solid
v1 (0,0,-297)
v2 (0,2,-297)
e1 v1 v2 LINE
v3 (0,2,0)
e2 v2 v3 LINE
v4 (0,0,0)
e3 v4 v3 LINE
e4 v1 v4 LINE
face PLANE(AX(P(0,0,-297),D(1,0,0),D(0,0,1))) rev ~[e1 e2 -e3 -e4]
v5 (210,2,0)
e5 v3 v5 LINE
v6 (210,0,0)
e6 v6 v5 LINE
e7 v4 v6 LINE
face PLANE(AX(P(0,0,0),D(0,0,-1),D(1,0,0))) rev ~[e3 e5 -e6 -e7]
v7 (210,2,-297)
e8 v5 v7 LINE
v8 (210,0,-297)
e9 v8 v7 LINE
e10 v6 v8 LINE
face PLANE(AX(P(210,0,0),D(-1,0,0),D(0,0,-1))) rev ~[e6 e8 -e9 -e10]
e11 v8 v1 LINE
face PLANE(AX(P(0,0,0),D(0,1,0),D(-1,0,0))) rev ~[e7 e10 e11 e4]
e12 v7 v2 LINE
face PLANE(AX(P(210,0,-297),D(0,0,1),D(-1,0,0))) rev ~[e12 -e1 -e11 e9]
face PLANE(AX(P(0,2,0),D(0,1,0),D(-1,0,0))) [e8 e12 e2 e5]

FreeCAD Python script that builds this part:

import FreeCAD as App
import Part
import Sketcher

V = App.Vector


def add_polygon(sketch, points):
    """Adds a closed chain of lines whose ends are joined by coincident constraints."""
    first, n = sketch.GeometryCount, len(points)
    for a, b in zip(points, points[1:] + points[:1]):
        sketch.addGeometry(Part.LineSegment(App.Vector(*a, 0), App.Vector(*b, 0)), False)
    for i in range(n):
        sketch.addConstraint(Sketcher.Constraint("Coincident", first + i, 2, first + (i + 1) % n, 1))

doc = App.newDocument("Part")
body = doc.addObject("PartDesign::Body", "Body")

sketch1 = body.newObject("Sketcher::SketchObject", "Sketch")
sketch1.AttachmentSupport = (doc.getObject("XZ_Plane"), [""])
sketch1.MapMode = "FlatFace"
add_polygon(sketch1, [(0, -297), (0, 0), (210, 0), (210, -297)])
sketch1.addConstraint([
    Sketcher.Constraint("Vertical", 0),
    Sketcher.Constraint("Horizontal", 1),
    Sketcher.Constraint("Vertical", 2),
    Sketcher.Constraint("Horizontal", 3),
    Sketcher.Constraint("Coincident", 0, 2, -1, 1),
    Sketcher.Constraint("DistanceX", 1, 1, 1, 2, 210.0),
    Sketcher.Constraint("DistanceY", 0, 1, 0, 2, 297.0),
])
pad1 = body.newObject("PartDesign::Pad", "Pad")
pad1.Profile = sketch1
pad1.Length = 2
pad1.Reversed = True

doc.recompute()
